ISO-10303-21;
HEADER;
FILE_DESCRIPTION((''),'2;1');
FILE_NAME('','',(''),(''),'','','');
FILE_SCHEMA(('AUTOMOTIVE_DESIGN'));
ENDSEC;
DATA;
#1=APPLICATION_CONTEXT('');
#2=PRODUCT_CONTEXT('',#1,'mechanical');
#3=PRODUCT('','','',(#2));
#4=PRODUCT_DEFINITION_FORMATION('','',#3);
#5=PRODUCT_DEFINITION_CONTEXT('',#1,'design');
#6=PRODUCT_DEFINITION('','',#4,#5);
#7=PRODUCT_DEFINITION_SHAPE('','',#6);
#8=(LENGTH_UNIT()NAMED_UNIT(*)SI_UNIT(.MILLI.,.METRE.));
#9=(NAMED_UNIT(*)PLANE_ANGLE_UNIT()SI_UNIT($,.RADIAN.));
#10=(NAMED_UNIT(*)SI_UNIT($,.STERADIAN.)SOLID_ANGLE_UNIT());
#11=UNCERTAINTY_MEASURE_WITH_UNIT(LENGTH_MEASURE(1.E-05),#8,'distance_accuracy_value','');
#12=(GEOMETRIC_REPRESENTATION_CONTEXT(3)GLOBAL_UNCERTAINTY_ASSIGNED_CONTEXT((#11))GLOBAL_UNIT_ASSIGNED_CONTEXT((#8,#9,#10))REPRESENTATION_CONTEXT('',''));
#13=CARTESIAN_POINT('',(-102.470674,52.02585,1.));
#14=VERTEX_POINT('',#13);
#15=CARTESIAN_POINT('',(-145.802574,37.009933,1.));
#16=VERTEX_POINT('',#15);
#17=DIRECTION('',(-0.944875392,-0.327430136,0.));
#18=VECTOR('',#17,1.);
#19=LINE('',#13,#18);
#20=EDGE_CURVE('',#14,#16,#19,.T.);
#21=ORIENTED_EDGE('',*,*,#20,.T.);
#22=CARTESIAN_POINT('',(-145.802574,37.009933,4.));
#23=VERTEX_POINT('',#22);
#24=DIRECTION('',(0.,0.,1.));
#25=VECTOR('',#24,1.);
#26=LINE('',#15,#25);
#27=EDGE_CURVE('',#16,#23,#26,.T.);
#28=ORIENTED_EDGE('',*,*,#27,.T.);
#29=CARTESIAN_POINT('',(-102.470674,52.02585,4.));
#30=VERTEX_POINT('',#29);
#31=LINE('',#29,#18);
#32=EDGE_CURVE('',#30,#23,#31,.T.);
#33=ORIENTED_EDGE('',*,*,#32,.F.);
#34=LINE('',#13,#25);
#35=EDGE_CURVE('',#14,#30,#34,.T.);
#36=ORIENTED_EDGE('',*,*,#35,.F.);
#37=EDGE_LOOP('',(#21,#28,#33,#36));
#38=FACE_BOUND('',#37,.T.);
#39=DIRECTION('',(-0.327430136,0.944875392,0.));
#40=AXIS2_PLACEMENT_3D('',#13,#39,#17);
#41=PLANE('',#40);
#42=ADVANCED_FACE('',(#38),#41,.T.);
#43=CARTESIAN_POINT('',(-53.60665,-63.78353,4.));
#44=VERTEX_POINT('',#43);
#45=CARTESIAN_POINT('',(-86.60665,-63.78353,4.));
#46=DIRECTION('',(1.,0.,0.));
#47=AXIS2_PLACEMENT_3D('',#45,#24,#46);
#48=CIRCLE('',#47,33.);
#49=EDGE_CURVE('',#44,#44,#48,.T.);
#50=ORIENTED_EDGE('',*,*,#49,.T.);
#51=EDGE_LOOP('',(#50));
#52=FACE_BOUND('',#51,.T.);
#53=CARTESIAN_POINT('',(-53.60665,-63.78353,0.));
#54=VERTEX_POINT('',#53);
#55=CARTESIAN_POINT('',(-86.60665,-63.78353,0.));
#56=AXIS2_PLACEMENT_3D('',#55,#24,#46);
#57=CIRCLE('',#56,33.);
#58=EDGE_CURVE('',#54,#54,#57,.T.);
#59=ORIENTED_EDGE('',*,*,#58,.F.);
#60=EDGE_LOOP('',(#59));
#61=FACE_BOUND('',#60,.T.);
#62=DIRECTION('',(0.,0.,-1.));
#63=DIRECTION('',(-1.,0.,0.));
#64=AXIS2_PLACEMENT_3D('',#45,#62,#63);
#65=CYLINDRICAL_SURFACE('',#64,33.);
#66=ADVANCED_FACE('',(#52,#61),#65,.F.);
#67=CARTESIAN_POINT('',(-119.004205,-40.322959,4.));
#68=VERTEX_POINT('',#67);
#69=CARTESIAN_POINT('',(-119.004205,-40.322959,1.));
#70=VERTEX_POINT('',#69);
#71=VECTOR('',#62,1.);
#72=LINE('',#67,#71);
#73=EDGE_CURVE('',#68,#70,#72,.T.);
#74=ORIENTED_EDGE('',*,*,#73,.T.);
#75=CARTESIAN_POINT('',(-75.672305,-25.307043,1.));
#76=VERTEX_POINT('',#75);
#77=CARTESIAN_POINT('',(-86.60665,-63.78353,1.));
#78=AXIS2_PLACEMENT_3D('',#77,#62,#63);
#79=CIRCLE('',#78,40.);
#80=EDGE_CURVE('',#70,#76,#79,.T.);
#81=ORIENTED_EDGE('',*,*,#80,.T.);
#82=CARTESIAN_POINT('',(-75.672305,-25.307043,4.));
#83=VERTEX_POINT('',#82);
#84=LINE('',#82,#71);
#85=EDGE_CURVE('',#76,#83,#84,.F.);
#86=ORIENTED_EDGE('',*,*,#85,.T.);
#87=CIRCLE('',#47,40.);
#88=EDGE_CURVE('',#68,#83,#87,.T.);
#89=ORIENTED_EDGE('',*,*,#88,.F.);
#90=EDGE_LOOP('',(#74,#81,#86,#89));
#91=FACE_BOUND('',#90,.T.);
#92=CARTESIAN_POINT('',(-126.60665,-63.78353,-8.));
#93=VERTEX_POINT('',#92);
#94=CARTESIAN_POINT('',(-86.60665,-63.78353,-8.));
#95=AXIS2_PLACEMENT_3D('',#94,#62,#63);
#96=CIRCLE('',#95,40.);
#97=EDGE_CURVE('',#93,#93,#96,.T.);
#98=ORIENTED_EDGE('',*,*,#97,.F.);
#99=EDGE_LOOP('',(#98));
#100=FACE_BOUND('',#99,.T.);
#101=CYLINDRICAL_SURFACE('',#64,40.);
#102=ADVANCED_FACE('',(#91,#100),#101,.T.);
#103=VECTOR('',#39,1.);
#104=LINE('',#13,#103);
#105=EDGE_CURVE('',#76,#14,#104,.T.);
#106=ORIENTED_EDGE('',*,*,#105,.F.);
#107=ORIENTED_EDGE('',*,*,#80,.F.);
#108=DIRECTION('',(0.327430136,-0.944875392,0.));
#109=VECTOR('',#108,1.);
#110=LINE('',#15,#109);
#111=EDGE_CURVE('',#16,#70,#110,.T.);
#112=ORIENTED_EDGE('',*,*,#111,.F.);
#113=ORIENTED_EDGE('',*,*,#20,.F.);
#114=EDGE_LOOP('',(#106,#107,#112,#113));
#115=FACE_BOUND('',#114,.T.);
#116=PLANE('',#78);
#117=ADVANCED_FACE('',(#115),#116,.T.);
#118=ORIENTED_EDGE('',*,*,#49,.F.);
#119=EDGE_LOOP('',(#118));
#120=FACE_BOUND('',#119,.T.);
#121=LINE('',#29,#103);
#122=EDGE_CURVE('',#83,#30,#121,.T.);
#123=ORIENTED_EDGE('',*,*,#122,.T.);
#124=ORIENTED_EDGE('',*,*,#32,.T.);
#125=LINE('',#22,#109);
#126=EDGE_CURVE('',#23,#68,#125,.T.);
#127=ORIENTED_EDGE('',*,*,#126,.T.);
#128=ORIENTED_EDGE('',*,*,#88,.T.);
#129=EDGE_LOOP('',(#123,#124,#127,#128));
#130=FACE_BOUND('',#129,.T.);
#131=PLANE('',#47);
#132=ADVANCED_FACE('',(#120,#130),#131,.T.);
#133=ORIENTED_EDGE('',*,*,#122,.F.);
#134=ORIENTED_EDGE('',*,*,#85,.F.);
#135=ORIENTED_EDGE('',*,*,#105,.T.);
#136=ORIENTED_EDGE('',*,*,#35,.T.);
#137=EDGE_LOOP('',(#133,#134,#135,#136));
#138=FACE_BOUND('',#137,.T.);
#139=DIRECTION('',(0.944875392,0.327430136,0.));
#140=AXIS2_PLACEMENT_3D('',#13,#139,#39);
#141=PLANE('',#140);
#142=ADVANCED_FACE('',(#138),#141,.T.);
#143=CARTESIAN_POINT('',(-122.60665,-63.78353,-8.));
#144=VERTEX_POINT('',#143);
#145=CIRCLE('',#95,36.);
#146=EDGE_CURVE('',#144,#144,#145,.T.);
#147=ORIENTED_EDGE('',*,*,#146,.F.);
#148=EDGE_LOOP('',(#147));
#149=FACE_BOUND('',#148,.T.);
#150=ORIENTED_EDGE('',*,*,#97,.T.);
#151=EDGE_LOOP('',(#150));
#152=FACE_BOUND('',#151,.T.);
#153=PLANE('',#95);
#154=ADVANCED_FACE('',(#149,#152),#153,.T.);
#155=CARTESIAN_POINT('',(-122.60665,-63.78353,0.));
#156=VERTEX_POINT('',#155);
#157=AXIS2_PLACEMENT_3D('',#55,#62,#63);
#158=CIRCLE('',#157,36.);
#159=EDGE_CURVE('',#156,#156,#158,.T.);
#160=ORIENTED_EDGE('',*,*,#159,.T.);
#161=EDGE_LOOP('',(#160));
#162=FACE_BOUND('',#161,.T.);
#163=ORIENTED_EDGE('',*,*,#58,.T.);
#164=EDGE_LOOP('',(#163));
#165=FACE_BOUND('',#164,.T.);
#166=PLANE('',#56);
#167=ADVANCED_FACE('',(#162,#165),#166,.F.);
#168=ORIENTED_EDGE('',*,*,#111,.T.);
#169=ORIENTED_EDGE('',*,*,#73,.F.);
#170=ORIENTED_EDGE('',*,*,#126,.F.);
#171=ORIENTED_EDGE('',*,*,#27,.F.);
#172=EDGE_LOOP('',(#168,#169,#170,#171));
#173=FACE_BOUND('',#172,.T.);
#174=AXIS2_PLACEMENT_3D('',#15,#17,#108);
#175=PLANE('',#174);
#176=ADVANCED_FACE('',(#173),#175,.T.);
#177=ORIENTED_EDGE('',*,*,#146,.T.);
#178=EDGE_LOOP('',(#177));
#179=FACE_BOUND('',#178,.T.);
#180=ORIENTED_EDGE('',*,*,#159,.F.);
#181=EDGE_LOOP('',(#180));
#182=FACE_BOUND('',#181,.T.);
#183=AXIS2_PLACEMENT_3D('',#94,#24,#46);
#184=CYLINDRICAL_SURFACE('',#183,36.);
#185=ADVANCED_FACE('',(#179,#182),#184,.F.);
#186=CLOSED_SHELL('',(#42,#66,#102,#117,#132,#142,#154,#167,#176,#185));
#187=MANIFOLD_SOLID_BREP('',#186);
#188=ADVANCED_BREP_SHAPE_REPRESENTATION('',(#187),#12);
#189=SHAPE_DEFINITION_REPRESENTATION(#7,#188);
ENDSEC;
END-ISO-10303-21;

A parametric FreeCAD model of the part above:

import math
import FreeCAD as App
import Part
import Sketcher

doc = App.newDocument("Part")
body = doc.addObject("PartDesign::Body", "Body")

# Sketch on XY plane
sketch1 = body.newObject("Sketcher::SketchObject", "Sketch")
sketch1.AttachmentSupport = (doc.getObject("XY_Plane"), [""])
sketch1.MapMode = "FlatFace"
sketch1.addGeometry([
    Part.Circle(App.Vector(-87, -64, 0), App.Vector(0, 0, 1), 40),
    Part.Circle(App.Vector(-87, -64, 0), App.Vector(0, 0, 1), 33),
], False)
sketch1.addConstraint([
    Sketcher.Constraint("Coincident", 1, 3, 0, 3),
    Sketcher.Constraint("Diameter", 0, 80.0),
    Sketcher.Constraint("Diameter", 1, 66.0),
    Sketcher.Constraint("DistanceX", 0, 3, -1, 1, 86.60665),
    Sketcher.Constraint("DistanceY", 0, 3, -1, 1, 63.78353),
])
pad1 = body.newObject("PartDesign::Pad", "Pad")
pad1.Profile = sketch1
pad1.Length = 4

# Sketch on XY plane
sketch2 = body.newObject("Sketcher::SketchObject", "Sketch001")
sketch2.AttachmentSupport = (doc.getObject("XY_Plane"), [""])
sketch2.MapMode = "FlatFace"
sketch2.AttachmentOffset = App.Placement(App.Vector(0, 0, -8), App.Rotation())
sketch2.addGeometry([
    Part.Circle(App.Vector(-87, -64, 0), App.Vector(0, 0, 1), 40),
    Part.Circle(App.Vector(-87, -64, 0), App.Vector(0, 0, 1), 36),
], False)
sketch2.addConstraint([
    Sketcher.Constraint("Coincident", 1, 3, 0, 3),
    Sketcher.Constraint("Diameter", 0, 80.0),
    Sketcher.Constraint("Diameter", 1, 72.0),
    Sketcher.Constraint("DistanceX", 0, 3, -1, 1, 86.60665),
    Sketcher.Constraint("DistanceY", 0, 3, -1, 1, 63.78353),
])
pad2 = body.newObject("PartDesign::Pad", "Pad001")
pad2.Profile = sketch2
pad2.Length = 8

# Sketch on XY plane
sketch3 = body.newObject("Sketcher::SketchObject", "Sketch002")
sketch3.AttachmentSupport = (doc.getObject("XY_Plane"), [""])
sketch3.MapMode = "FlatFace"
sketch3.AttachmentOffset = App.Placement(App.Vector(0, 0, 4), App.Rotation())
sketch3.addGeometry([
    Part.LineSegment(App.Vector(-102, 52, 0), App.Vector(-146, 37, 0)),
    Part.LineSegment(App.Vector(-146, 37, 0), App.Vector(-118, -43, 0)),
    Part.ArcOfCircle(Part.Circle(App.Vector(-87, -64, 0), App.Vector(0, 0, 1), 38), math.radians(72), math.radians(146)),
    Part.LineSegment(App.Vector(-75, -28, 0), App.Vector(-102, 52, 0)),
], False)
sketch3.addConstraint([
    Sketcher.Constraint("Coincident", 0, 2, 1, 1),
    Sketcher.Constraint("Coincident", 1, 2, 2, 2),
    Sketcher.Constraint("Coincident", 2, 1, 3, 1),
    Sketcher.Constraint("Coincident", 3, 2, 0, 1),
    Sketcher.Constraint("Perpendicular", 0, 1),
    Sketcher.Constraint("Parallel", 1, 3),
    Sketcher.Constraint("Equal", 1, 3),
    Sketcher.Constraint("Radius", 2, 38.106926),
    Sketcher.Constraint("DistanceX", 1, 2, 2, 1, 43.3319),
    Sketcher.Constraint("Distance", 0, 45.85991),
    Sketcher.Constraint("DistanceX", 2, 3, -1, 1, 86.60665),
    Sketcher.Constraint("DistanceY", 2, 3, -1, 1, 63.78353),
    Sketcher.Constraint("DistanceY", -1, 1, 3, 2, 52.02585),
])
pad3 = body.newObject("PartDesign::Pad", "Pad002")
pad3.Profile = sketch3
pad3.Length = 3
pad3.Reversed = True

doc.recompute()
